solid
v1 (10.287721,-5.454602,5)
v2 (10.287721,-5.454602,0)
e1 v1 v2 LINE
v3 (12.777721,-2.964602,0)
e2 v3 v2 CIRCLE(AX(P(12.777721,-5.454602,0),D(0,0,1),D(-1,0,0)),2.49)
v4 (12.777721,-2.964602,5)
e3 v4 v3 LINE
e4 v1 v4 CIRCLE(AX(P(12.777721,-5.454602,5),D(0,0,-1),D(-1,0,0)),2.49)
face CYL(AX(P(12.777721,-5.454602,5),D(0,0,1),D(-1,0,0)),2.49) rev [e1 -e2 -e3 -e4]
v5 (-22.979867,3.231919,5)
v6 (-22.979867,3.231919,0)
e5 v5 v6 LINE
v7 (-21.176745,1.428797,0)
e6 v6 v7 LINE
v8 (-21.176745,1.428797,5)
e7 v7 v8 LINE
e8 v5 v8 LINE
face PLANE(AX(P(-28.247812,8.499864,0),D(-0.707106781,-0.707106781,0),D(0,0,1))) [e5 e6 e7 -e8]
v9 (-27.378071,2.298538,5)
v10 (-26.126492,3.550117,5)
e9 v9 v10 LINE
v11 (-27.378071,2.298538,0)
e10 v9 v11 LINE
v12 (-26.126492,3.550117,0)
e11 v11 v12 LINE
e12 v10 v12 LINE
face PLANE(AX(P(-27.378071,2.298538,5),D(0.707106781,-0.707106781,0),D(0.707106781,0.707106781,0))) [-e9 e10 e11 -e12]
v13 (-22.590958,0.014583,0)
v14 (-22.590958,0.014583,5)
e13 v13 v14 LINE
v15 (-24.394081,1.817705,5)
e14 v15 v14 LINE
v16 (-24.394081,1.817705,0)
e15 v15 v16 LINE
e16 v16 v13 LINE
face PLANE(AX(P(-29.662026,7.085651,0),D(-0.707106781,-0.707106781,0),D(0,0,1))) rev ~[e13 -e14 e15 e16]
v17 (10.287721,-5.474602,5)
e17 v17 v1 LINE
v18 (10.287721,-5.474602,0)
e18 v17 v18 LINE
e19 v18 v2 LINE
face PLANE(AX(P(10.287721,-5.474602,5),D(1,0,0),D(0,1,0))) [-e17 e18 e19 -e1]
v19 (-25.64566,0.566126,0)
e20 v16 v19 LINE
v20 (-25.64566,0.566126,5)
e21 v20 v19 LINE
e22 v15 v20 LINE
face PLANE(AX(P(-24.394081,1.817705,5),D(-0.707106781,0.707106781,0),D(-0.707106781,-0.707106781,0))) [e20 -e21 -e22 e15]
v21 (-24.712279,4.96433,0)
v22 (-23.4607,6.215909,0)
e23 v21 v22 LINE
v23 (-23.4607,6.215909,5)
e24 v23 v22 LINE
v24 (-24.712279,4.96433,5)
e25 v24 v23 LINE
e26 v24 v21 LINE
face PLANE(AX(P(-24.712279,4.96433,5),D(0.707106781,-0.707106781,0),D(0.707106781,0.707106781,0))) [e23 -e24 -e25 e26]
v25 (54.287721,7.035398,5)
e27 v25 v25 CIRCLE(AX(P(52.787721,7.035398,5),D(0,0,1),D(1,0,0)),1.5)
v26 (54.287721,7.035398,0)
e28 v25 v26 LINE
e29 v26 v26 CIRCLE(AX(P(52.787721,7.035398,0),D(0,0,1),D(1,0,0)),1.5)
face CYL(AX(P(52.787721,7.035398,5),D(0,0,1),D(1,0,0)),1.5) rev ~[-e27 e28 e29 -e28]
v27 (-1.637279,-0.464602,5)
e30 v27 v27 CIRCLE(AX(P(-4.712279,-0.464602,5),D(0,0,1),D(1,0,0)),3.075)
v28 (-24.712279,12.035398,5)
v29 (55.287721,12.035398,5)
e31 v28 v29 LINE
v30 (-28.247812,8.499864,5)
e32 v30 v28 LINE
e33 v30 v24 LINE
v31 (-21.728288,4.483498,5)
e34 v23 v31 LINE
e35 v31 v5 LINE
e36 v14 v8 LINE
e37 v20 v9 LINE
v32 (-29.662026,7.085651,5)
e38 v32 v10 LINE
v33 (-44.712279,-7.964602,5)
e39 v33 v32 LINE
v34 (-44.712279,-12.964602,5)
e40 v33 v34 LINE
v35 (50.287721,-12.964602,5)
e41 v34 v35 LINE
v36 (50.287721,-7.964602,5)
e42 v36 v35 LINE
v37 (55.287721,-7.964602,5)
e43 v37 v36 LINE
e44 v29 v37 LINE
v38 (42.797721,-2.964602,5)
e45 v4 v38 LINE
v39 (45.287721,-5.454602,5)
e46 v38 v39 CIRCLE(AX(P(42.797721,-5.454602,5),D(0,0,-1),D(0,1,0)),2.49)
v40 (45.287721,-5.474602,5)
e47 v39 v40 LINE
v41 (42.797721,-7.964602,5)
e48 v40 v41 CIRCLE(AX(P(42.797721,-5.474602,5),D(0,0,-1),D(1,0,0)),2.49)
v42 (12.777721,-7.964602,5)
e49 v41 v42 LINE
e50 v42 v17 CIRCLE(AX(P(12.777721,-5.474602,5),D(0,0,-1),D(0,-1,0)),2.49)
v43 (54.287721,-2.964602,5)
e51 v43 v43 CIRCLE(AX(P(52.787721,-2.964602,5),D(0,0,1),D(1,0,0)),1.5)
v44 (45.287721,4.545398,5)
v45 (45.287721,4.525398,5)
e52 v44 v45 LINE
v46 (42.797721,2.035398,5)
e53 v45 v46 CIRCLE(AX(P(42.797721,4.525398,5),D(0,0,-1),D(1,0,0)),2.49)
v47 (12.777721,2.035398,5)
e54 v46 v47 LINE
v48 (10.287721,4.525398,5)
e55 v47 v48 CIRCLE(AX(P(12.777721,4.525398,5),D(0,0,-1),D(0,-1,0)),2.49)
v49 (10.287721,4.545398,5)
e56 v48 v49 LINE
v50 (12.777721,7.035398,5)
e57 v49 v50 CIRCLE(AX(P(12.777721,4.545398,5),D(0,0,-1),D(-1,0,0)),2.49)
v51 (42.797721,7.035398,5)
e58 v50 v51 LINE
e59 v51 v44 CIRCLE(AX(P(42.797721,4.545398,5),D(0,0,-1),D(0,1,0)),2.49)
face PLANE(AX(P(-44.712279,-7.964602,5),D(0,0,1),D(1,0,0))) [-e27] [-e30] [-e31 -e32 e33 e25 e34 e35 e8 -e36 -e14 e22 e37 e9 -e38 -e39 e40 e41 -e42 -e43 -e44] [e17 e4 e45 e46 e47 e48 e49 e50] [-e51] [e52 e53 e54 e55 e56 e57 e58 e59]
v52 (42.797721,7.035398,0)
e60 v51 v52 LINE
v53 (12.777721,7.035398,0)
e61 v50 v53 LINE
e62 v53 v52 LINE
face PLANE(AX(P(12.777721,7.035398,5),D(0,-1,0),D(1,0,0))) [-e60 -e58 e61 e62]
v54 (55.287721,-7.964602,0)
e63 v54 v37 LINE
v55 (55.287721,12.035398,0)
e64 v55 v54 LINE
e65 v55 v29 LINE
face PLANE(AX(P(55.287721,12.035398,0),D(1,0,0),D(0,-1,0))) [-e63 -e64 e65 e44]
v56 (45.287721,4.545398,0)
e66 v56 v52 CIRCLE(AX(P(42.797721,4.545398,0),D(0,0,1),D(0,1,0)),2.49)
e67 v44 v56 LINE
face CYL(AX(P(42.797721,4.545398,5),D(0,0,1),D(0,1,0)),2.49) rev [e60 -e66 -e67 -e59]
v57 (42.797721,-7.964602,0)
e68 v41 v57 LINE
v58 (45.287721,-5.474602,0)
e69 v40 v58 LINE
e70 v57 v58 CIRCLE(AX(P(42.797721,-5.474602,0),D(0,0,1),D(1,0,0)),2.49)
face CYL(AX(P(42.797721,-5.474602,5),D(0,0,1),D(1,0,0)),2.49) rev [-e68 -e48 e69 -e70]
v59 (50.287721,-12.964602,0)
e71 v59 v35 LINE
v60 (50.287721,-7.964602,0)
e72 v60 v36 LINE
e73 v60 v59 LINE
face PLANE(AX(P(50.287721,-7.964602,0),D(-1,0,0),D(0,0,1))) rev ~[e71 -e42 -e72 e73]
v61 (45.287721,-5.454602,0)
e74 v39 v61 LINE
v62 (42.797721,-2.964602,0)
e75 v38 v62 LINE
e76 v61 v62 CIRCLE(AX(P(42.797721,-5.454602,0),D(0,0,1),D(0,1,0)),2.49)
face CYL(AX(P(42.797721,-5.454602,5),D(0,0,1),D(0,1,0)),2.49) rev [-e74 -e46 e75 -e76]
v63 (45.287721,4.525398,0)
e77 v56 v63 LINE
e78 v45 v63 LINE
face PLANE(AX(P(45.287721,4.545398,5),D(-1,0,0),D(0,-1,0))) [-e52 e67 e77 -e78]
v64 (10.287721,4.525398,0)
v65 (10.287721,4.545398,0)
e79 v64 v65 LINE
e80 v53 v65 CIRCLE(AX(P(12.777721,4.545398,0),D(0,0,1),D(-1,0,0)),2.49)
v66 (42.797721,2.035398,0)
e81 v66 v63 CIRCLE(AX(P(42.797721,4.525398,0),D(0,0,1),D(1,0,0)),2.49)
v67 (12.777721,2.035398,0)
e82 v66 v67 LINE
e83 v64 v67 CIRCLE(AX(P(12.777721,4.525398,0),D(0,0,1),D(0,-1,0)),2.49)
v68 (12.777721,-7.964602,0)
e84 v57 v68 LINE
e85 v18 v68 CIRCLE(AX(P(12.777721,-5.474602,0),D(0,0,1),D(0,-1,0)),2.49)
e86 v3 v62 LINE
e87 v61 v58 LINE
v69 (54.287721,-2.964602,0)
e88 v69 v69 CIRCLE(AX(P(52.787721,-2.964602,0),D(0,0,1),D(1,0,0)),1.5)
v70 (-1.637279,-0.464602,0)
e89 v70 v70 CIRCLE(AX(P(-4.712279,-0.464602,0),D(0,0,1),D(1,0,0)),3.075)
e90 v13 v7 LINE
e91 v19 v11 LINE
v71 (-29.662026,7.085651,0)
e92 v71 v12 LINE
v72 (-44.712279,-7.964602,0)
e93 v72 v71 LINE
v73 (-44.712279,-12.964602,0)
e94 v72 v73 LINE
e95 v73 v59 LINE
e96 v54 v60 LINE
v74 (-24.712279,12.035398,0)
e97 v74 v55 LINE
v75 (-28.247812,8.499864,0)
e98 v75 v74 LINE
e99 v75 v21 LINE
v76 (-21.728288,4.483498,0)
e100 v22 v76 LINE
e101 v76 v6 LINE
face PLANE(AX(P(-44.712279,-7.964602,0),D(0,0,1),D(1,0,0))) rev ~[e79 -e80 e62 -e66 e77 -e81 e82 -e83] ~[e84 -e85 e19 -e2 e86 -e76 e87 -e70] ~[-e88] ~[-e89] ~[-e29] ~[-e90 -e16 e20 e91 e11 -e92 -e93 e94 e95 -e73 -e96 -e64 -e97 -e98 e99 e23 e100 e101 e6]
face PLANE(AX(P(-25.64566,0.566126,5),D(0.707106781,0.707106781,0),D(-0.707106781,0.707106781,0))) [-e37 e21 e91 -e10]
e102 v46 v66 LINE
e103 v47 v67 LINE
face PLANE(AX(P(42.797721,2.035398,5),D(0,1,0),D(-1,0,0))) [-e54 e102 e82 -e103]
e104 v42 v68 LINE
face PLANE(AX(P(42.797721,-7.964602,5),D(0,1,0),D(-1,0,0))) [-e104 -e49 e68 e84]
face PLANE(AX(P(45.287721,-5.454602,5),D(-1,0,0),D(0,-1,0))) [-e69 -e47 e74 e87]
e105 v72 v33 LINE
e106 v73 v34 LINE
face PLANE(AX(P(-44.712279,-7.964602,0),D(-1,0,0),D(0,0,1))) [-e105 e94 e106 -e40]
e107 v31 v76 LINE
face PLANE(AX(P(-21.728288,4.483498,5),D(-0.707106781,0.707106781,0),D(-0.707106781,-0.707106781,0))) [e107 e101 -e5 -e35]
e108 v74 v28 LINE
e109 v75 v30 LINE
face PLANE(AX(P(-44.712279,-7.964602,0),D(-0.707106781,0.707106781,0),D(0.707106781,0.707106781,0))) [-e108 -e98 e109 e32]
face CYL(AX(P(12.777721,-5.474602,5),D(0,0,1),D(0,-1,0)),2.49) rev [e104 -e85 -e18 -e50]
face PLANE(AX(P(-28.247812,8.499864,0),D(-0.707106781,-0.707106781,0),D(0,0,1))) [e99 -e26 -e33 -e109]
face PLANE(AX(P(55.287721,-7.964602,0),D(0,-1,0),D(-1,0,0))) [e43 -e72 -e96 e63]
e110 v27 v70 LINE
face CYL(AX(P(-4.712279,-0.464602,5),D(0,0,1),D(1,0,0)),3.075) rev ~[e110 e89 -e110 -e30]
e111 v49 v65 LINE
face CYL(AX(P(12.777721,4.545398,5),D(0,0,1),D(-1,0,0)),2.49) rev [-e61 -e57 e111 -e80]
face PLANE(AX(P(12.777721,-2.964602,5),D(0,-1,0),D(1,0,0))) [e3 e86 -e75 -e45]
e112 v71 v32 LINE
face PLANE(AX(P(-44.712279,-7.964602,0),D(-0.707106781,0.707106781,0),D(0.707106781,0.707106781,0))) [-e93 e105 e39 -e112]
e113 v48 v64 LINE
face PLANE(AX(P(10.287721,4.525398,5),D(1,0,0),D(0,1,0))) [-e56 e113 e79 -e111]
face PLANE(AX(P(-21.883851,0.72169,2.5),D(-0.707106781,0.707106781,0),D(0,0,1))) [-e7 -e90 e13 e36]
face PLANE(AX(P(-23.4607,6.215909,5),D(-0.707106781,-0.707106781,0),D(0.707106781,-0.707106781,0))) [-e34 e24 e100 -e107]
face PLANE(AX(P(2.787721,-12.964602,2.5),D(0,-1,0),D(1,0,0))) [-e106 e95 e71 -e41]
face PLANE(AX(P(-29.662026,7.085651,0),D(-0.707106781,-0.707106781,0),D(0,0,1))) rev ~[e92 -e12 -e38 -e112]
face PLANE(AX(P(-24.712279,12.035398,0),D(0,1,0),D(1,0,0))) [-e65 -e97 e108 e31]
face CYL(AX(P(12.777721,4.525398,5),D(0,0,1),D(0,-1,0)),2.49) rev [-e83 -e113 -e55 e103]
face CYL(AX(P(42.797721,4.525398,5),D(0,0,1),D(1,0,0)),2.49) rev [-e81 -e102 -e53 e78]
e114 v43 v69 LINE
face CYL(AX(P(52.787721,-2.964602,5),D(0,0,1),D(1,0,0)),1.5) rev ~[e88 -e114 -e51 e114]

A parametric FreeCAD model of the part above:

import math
import FreeCAD as App
import Part
import Sketcher

V = App.Vector
Q = App.Units.Quantity

doc = App.newDocument("Part")
body = doc.addObject("PartDesign::Body", "Body")

# Sketch on XY plane
sketch1 = doc.addObject("Sketcher::SketchObject", "Sketch")
body.addObject(sketch1)
sketch1.AttachmentSupport = (doc.XY_Plane, [""])
sketch1.MapMode = "FlatFace"
sketch1.addGeometry([
    Part.LineSegment(V(-24.712279, 12.035398, 0), V(-44.712279, -7.964602, 0)),
    Part.LineSegment(V(-44.712279, -7.964602, 0), V(55.287721, -7.964602, 0)),
    Part.LineSegment(V(55.287721, -7.964602, 0), V(55.287721, 12.035398, 0)),
    Part.LineSegment(V(55.287721, 12.035398, 0), V(-24.712279, 12.035398, 0)),
], False)
sketch1.addConstraint([
    Sketcher.Constraint("Coincident", 0, 2, 1, 1),
    Sketcher.Constraint("Coincident", 1, 2, 2, 1),
    Sketcher.Constraint("Coincident", 2, 2, 3, 1),
    Sketcher.Constraint("Coincident", 3, 2, 0, 1),
    Sketcher.Constraint("Horizontal", 1),
    Sketcher.Constraint("Vertical", 2),
    Sketcher.Constraint("Horizontal", 3),
    Sketcher.Constraint("DistanceX", 1, 1, 1, 2, 100.0),
    Sketcher.Constraint("DistanceX", 3, 2, 3, 1, 80.0),
    Sketcher.Constraint("DistanceY", 2, 1, 2, 2, 20.0),
    Sketcher.Constraint("DistanceY", 0, 2, -1, 1, 7.964602),
    Sketcher.Constraint("DistanceX", 0, 2, -1, 1, 44.712279),
])
pad1 = doc.addObject("PartDesign::Pad", "Pad")
body.addObject(pad1)
pad1.Profile = sketch1
pad1.Length = 5

# Sketch on XZ plane
sketch2 = doc.addObject("Sketcher::SketchObject", "Sketch001")
body.addObject(sketch2)
sketch2.AttachmentSupport = (doc.XZ_Plane, [""])
sketch2.MapMode = "FlatFace"
sketch2.AttachmentOffset = App.Placement(V(0, 0, 7.964602), App.Rotation())
sketch2.addGeometry([
    Part.LineSegment(V(-44.712279, 5, 0), V(-44.712279, 0, 0)),
    Part.LineSegment(V(-44.712279, 0, 0), V(50.287721, 0, 0)),
    Part.LineSegment(V(50.287721, 0, 0), V(50.287721, 5, 0)),
    Part.LineSegment(V(50.287721, 5, 0), V(-44.712279, 5, 0)),
], False)
sketch2.addConstraint([
    Sketcher.Constraint("Coincident", 0, 2, 1, 1),
    Sketcher.Constraint("Coincident", 1, 2, 2, 1),
    Sketcher.Constraint("Coincident", 2, 2, 3, 1),
    Sketcher.Constraint("Coincident", 3, 2, 0, 1),
    Sketcher.Constraint("Vertical", 0),
    Sketcher.Constraint("Horizontal", 1),
    Sketcher.Constraint("Vertical", 2),
    Sketcher.Constraint("Horizontal", 3),
    Sketcher.Constraint("PointOnObject", 0, 2, -1),
    Sketcher.Constraint("DistanceX", 1, 1, 1, 2, 95.0),
    Sketcher.Constraint("DistanceY", 0, 2, 0, 1, 5.0),
    Sketcher.Constraint("DistanceX", 0, 2, -1, 1, 44.712279),
])
pad2 = doc.addObject("PartDesign::Pad", "Pad001")
body.addObject(pad2)
pad2.Profile = sketch2
pad2.Length = 5

# Sketch on an angled plane
sketch3 = doc.addObject("Sketcher::SketchObject", "Sketch002")
body.addObject(sketch3)
sketch3.Placement = App.Placement(V(-18.373838, 18.373838, 0), App.Rotation(V(0, 0, 1), V(0.707106781, 0.707106781, 0), V(-0.707106781, 0.707106781, 0), "ZXY"))
sketch3.addGeometry([
    Part.LineSegment(V(0, -13.963908, 0), V(0, -15.963908, 0)),
    Part.LineSegment(V(0, -15.963908, 0), V(5, -15.963908, 0)),
    Part.LineSegment(V(5, -15.963908, 0), V(5, -13.963908, 0)),
    Part.LineSegment(V(5, -13.963908, 0), V(0, -13.963908, 0)),
], False)
sketch3.addConstraint([
    Sketcher.Constraint("Coincident", 0, 2, 1, 1),
    Sketcher.Constraint("Coincident", 1, 2, 2, 1),
    Sketcher.Constraint("Coincident", 2, 2, 3, 1),
    Sketcher.Constraint("Coincident", 3, 2, 0, 1),
    Sketcher.Constraint("Vertical", 0),
    Sketcher.Constraint("Horizontal", 1),
    Sketcher.Constraint("Vertical", 2),
    Sketcher.Constraint("Horizontal", 3),
    Sketcher.Constraint("PointOnObject", 0, 2, -2),
    Sketcher.Constraint("DistanceX", 1, 1, 1, 2, 5.0),
    Sketcher.Constraint("DistanceY", 0, 2, 0, 1, 2.0),
    Sketcher.Constraint("DistanceY", 0, 2, -1, 1, 15.963908),
])
pocket1 = doc.addObject("PartDesign::Pocket", "Pocket")
body.addObject(pocket1)
pocket1.Profile = sketch3
pocket1.Length = 10

# Sketch on XY plane
sketch4 = doc.addObject("Sketcher::SketchObject", "Sketch003")
body.addObject(sketch4)
sketch4.AttachmentSupport = (doc.XY_Plane, [""])
sketch4.MapMode = "FlatFace"
sketch4.AttachmentOffset = App.Placement(V(0, 0, 5), App.Rotation())
sketch4.addGeometry([
    Part.LineSegment(V(-23.4607, 6.215909, 0), V(-24.712279, 4.96433, 0)),  # 0
    Part.LineSegment(V(-24.712279, 4.96433, 0), V(-22.979867, 3.231919, 0)),  # 1
    Part.LineSegment(V(-22.979867, 3.231919, 0), V(-21.728288, 4.483498, 0)),  # 2
    Part.LineSegment(V(-21.728288, 4.483498, 0), V(-23.4607, 6.215909, 0)),  # 3
    Part.LineSegment(V(-25.64566, 0.566126, 0), V(-24.394081, 1.817705, 0)),  # 4
    Part.LineSegment(V(-24.394081, 1.817705, 0), V(-26.126492, 3.550117, 0)),  # 5
    Part.LineSegment(V(-26.126492, 3.550117, 0), V(-27.378071, 2.298538, 0)),  # 6
    Part.LineSegment(V(-27.378071, 2.298538, 0), V(-25.64566, 0.566126, 0)),  # 7
], False)
sketch4.addConstraint([
    Sketcher.Constraint("Coincident", 0, 2, 1, 1),
    Sketcher.Constraint("Coincident", 1, 2, 2, 1),
    Sketcher.Constraint("Coincident", 2, 2, 3, 1),
    Sketcher.Constraint("Coincident", 3, 2, 0, 1),
    Sketcher.Constraint("Coincident", 4, 2, 5, 1),
    Sketcher.Constraint("Coincident", 5, 2, 6, 1),
    Sketcher.Constraint("Coincident", 6, 2, 7, 1),
    Sketcher.Constraint("Coincident", 7, 2, 4, 1),
    Sketcher.Constraint("Perpendicular", 0, 1),
    Sketcher.Constraint("Perpendicular", 1, 2),
    Sketcher.Constraint("Perpendicular", 2, 3),
    Sketcher.Constraint("Perpendicular", 3, 4),
    Sketcher.Constraint("Perpendicular", 4, 5),
    Sketcher.Constraint("Perpendicular", 5, 6),
    Sketcher.Constraint("Perpendicular", 6, 7),
    Sketcher.Constraint("Equal", 2, 4),
    Sketcher.Constraint("Equal", 3, 5),
    Sketcher.Constraint("Angle", 0, Q("-135 deg")),
    Sketcher.Constraint("Distance", 0, 1.77),
    Sketcher.Constraint("Distance", 1, 2.45),
    Sketcher.Constraint("DistanceX", 3, 2, -1, 1, 23.4607),
    Sketcher.Constraint("DistanceX", 0, 2, 4, 2, 0.318198),
    Sketcher.Constraint("DistanceY", 1, 2, 5, 2, 0.318198),
    Sketcher.Constraint("DistanceY", -1, 1, 0, 2, 4.96433),
])
pocket2 = doc.addObject("PartDesign::Pocket", "Pocket001")
body.addObject(pocket2)
pocket2.Profile = sketch4
pocket2.Length = 10

# Sketch on XY plane
sketch5 = doc.addObject("Sketcher::SketchObject", "Sketch004")
body.addObject(sketch5)
sketch5.AttachmentSupport = (doc.XY_Plane, [""])
sketch5.MapMode = "FlatFace"
sketch5.AttachmentOffset = App.Placement(V(0, 0, 5), App.Rotation())
sketch5.addGeometry(Part.Circle(V(-4.712279, -0.464602, 0), V(0, 0, 1), 3.075), False)
sketch5.addConstraint([
    Sketcher.Constraint("Diameter", 0, 6.15),
    Sketcher.Constraint("DistanceY", 0, 3, -1, 1, 0.464602),
    Sketcher.Constraint("DistanceX", 0, 3, -1, 1, 4.712279),
])
pocket3 = doc.addObject("PartDesign::Pocket", "Pocket002")
body.addObject(pocket3)
pocket3.Profile = sketch5
pocket3.Type = "ThroughAll"

# Sketch on XY plane
sketch6 = doc.addObject("Sketcher::SketchObject", "Sketch005")
body.addObject(sketch6)
sketch6.AttachmentSupport = (doc.XY_Plane, [""])
sketch6.MapMode = "FlatFace"
sketch6.AttachmentOffset = App.Placement(V(0, 0, 5), App.Rotation())
sketch6.addGeometry([
    Part.LineSegment(V(42.797721, 7.035398, 0), V(12.777721, 7.035398, 0)),  # 0
    Part.ArcOfCircle(Part.Circle(V(12.777721, 4.545398, 0), V(0, 0, 1), 2.49), math.radians(90), math.radians(180)),  # 1
    Part.LineSegment(V(10.287721, 4.545398, 0), V(10.287721, 4.525398, 0)),  # 2
    Part.ArcOfCircle(Part.Circle(V(12.777721, 4.525398, 0), V(0, 0, 1), 2.49), math.radians(180), math.radians(270)),  # 3
    Part.LineSegment(V(12.777721, 2.035398, 0), V(42.797721, 2.035398, 0)),  # 4
    Part.ArcOfCircle(Part.Circle(V(42.797721, 4.525398, 0), V(0, 0, 1), 2.49), math.radians(-90), math.radians(0)),  # 5
    Part.LineSegment(V(45.287721, 4.525398, 0), V(45.287721, 4.545398, 0)),  # 6
    Part.ArcOfCircle(Part.Circle(V(42.797721, 4.545398, 0), V(0, 0, 1), 2.49), math.radians(0), math.radians(90)),  # 7
    Part.LineSegment(V(42.797721, -2.964602, 0), V(12.777721, -2.964602, 0)),  # 8
    Part.ArcOfCircle(Part.Circle(V(12.777721, -5.454602, 0), V(0, 0, 1), 2.49), math.radians(90), math.radians(180)),  # 9
    Part.LineSegment(V(10.287721, -5.454602, 0), V(10.287721, -5.474602, 0)),  # 10
    Part.ArcOfCircle(Part.Circle(V(12.777721, -5.474602, 0), V(0, 0, 1), 2.49), math.radians(180), math.radians(270)),  # 11
    Part.LineSegment(V(12.777721, -7.964602, 0), V(42.797721, -7.964602, 0)),  # 12
    Part.ArcOfCircle(Part.Circle(V(42.797721, -5.474602, 0), V(0, 0, 1), 2.49), math.radians(-90), math.radians(0)),  # 13
    Part.LineSegment(V(45.287721, -5.474602, 0), V(45.287721, -5.454602, 0)),  # 14
    Part.ArcOfCircle(Part.Circle(V(42.797721, -5.454602, 0), V(0, 0, 1), 2.49), math.radians(0), math.radians(90)),  # 15
], False)
sketch6.addConstraint([
    Sketcher.Constraint("Tangent", 0, 2, 1, 1),
    Sketcher.Constraint("Tangent", 1, 2, 2, 1),
    Sketcher.Constraint("Tangent", 2, 2, 3, 1),
    Sketcher.Constraint("Tangent", 3, 2, 4, 1),
    Sketcher.Constraint("Tangent", 4, 2, 5, 1),
    Sketcher.Constraint("Tangent", 5, 2, 6, 1),
    Sketcher.Constraint("Tangent", 6, 2, 7, 1),
    Sketcher.Constraint("Tangent", 7, 2, 0, 1),
    Sketcher.Constraint("Tangent", 8, 2, 9, 1),
    Sketcher.Constraint("Tangent", 9, 2, 10, 1),
    Sketcher.Constraint("Tangent", 10, 2, 11, 1),
    Sketcher.Constraint("Tangent", 11, 2, 12, 1),
    Sketcher.Constraint("Tangent", 12, 2, 13, 1),
    Sketcher.Constraint("Tangent", 13, 2, 14, 1),
    Sketcher.Constraint("Tangent", 14, 2, 15, 1),
    Sketcher.Constraint("Tangent", 15, 2, 8, 1),
    Sketcher.Constraint("Horizontal", 0),
    Sketcher.Constraint("Vertical", 2),
    Sketcher.Constraint("Horizontal", 4),
    Sketcher.Constraint("Vertical", 6),
    Sketcher.Constraint("Horizontal", 8),
    Sketcher.Constraint("Vertical", 10),
    Sketcher.Constraint("Horizontal", 12),
    Sketcher.Constraint("Vertical", 14),
    Sketcher.Constraint("Equal", 1, 3),
    Sketcher.Constraint("Equal", 3, 5),
    Sketcher.Constraint("Equal", 5, 7),
    Sketcher.Constraint("Equal", 7, 9),
    Sketcher.Constraint("Equal", 9, 11),
    Sketcher.Constraint("Equal", 11, 13),
    Sketcher.Constraint("Equal", 13, 15),
    Sketcher.Constraint("Vertical", 3, 3, 9, 3),
    Sketcher.Constraint("Vertical", 7, 3, 13, 3),
    Sketcher.Constraint("Equal", 6, 10),
    Sketcher.Constraint("Radius", 1, 2.49),
    Sketcher.Constraint("DistanceY", 9, 3, 1, 3, 10.0),
    Sketcher.Constraint("DistanceY", 3, 2, 0, 2, 5.0),
    Sketcher.Constraint("DistanceX", 0, 2, 0, 1, 30.02),
    Sketcher.Constraint("DistanceY", -1, 1, 1, 3, 4.545398),
    Sketcher.Constraint("DistanceX", -1, 1, 1, 3, 12.777721),
])
pocket4 = doc.addObject("PartDesign::Pocket", "Pocket003")
body.addObject(pocket4)
pocket4.Profile = sketch6
pocket4.Length = 10

# Sketch on XY plane
sketch7 = doc.addObject("Sketcher::SketchObject", "Sketch006")
body.addObject(sketch7)
sketch7.AttachmentSupport = (doc.XY_Plane, [""])
sketch7.MapMode = "FlatFace"
sketch7.AttachmentOffset = App.Placement(V(0, 0, 5), App.Rotation())
sketch7.addGeometry([
    Part.Circle(V(52.787721, 7.035398, 0), V(0, 0, 1), 1.5),
    Part.Circle(V(52.787721, -2.964602, 0), V(0, 0, 1), 1.5),
], False)
sketch7.addConstraint([
    Sketcher.Constraint("Equal", 0, 1),
    Sketcher.Constraint("Vertical", 0, 3, 1, 3),
    Sketcher.Constraint("Diameter", 0, 3.0),
    Sketcher.Constraint("DistanceY", 1, 3, 0, 3, 10.0),
    Sketcher.Constraint("DistanceY", -1, 1, 0, 3, 7.035398),
    Sketcher.Constraint("DistanceX", -1, 1, 0, 3, 52.787721),
])
pocket5 = doc.addObject("PartDesign::Pocket", "Pocket004")
body.addObject(pocket5)
pocket5.Profile = sketch7
pocket5.Length = 10

doc.recompute()
